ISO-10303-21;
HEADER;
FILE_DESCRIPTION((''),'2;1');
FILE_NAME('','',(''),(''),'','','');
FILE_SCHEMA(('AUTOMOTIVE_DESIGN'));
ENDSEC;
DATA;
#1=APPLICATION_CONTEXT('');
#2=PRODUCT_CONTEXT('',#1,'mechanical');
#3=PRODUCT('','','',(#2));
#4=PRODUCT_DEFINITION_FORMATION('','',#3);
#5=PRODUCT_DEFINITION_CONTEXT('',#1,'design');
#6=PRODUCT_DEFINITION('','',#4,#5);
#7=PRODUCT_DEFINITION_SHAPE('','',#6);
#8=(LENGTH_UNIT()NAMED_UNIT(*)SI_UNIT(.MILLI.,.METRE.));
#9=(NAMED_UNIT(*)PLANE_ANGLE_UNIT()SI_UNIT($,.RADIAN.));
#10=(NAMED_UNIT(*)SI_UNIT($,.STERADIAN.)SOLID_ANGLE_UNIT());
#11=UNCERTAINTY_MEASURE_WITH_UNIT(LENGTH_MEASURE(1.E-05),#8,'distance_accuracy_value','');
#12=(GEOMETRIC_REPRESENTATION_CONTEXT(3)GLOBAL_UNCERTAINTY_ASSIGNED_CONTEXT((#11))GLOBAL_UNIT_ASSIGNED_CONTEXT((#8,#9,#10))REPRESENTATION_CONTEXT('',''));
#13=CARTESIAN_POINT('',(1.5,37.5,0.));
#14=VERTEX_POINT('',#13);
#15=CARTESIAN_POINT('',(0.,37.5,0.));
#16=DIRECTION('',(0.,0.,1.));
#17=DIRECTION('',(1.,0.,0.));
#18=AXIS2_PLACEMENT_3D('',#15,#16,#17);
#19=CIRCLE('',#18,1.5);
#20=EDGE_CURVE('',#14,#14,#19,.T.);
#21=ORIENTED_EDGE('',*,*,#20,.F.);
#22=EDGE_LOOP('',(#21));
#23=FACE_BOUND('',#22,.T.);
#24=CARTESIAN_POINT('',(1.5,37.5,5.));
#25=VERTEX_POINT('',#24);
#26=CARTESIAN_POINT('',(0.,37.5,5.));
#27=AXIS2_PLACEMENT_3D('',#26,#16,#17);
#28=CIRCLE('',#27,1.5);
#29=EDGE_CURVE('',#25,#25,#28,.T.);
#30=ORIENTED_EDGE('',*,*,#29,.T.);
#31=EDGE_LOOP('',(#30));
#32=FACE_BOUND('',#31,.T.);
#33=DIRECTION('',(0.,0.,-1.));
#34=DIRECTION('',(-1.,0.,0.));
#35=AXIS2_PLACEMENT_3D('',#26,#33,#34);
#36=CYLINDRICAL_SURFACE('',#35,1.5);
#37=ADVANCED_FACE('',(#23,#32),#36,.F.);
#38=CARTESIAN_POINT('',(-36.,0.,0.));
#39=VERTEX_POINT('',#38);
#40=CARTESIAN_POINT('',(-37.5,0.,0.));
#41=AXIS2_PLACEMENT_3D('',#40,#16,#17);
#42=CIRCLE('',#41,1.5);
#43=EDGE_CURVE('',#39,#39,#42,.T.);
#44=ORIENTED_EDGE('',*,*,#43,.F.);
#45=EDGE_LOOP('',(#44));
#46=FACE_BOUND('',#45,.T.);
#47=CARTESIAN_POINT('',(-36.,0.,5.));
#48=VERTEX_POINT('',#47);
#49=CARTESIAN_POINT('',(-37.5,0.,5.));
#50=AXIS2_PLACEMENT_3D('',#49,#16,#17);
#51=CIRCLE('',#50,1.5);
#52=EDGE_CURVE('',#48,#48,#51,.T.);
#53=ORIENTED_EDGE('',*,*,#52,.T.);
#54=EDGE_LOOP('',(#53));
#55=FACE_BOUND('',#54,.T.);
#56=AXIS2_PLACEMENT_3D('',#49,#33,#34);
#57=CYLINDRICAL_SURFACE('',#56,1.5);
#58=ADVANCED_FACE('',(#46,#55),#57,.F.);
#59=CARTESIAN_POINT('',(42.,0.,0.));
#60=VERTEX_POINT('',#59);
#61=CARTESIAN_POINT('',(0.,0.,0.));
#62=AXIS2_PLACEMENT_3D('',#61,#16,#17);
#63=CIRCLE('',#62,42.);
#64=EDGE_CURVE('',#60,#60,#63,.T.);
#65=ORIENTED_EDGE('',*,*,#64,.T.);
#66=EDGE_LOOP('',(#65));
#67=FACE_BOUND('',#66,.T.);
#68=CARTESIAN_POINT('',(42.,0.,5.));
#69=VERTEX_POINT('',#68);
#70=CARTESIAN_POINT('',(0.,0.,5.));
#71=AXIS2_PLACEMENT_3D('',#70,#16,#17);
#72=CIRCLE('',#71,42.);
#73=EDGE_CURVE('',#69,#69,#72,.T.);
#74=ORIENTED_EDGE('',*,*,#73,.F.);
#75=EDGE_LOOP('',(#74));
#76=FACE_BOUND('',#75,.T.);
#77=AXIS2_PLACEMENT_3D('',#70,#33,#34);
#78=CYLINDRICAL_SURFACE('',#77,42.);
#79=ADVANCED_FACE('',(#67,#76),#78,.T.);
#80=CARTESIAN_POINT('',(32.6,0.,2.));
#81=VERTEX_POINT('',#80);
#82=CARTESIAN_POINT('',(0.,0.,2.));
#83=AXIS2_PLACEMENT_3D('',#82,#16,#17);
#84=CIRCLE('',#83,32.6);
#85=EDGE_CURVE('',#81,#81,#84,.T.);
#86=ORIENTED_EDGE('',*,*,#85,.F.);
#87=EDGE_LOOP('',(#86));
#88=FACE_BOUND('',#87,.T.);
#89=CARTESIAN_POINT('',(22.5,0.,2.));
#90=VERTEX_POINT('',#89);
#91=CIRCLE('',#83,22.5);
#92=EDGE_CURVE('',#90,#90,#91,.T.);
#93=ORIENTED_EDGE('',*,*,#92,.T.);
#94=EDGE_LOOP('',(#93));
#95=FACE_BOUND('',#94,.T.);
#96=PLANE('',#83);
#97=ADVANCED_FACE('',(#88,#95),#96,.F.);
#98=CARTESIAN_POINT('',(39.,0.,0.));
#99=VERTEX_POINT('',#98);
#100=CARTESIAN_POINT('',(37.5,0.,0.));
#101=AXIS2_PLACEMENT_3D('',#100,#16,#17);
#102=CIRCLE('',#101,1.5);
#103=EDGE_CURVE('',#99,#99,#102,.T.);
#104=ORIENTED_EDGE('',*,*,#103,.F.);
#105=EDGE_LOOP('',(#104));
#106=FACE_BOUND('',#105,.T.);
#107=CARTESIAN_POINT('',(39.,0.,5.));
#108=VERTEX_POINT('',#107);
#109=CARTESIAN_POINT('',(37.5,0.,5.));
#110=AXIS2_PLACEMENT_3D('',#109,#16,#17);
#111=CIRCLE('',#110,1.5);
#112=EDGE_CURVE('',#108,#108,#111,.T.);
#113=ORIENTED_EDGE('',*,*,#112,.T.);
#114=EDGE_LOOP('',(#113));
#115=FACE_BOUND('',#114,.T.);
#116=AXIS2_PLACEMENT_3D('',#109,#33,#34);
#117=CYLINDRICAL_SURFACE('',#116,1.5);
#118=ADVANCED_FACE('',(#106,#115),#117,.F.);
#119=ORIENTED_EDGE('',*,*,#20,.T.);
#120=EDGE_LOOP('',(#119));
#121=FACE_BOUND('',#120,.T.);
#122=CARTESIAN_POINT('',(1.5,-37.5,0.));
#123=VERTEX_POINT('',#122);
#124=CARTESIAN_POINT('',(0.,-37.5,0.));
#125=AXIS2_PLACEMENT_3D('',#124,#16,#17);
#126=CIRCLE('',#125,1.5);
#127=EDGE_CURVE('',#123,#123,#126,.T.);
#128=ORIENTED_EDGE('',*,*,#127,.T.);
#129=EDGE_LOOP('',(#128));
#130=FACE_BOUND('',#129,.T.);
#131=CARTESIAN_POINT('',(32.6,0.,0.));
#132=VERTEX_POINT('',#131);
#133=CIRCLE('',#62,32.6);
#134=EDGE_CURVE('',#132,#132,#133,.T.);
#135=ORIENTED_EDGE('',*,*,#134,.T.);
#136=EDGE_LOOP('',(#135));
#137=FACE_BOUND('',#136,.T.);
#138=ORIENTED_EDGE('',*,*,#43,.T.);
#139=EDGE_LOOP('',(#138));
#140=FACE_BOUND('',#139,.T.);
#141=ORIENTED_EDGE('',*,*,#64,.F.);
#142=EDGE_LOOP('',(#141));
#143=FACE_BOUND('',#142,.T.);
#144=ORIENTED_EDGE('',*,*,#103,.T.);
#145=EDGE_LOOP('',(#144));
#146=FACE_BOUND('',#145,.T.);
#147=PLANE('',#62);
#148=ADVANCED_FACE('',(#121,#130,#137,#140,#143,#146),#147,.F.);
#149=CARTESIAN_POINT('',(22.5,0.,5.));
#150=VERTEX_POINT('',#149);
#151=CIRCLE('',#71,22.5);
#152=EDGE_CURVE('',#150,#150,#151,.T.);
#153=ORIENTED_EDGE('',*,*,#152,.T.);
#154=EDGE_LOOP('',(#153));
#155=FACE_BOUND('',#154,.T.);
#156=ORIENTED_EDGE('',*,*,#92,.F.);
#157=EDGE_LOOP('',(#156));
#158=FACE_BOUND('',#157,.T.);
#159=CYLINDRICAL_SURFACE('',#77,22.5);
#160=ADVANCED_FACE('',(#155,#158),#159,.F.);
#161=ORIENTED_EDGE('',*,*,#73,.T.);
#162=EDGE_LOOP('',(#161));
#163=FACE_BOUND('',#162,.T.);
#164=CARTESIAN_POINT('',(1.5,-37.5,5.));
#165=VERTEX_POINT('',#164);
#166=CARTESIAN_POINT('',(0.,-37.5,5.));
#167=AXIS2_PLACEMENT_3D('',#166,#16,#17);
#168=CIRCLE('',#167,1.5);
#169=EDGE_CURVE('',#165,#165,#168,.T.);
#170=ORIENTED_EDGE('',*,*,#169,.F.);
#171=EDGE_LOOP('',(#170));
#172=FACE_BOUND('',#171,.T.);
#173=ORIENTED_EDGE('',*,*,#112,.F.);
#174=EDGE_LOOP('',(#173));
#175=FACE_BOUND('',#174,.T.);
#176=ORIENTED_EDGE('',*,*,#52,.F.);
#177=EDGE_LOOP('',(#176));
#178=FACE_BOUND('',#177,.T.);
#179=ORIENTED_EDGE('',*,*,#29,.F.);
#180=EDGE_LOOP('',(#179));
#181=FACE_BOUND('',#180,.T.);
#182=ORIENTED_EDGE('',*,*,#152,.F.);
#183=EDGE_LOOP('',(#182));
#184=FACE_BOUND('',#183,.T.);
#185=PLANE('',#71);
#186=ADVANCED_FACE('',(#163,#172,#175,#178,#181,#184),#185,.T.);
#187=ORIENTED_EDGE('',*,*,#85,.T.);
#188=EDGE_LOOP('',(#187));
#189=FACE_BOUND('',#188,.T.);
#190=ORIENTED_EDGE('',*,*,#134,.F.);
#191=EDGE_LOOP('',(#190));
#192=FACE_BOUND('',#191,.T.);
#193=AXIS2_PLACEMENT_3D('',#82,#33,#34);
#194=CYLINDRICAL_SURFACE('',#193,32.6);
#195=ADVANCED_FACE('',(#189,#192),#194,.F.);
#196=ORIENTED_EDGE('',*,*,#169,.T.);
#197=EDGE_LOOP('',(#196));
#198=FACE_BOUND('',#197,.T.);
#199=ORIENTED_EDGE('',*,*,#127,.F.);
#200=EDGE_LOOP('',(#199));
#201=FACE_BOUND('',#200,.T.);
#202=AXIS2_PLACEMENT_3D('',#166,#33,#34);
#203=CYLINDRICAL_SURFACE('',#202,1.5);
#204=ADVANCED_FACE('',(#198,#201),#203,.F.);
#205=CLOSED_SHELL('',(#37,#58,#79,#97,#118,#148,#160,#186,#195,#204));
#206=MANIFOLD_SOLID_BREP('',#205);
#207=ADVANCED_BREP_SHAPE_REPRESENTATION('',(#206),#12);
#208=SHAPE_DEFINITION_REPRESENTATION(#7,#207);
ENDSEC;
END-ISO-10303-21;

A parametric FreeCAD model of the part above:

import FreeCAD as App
import Part
import Sketcher
Q = App.Units.Quantity

doc = App.newDocument("Part")
body = doc.addObject("PartDesign::Body", "Body")

# Sketch on XY plane
sketch1 = body.newObject("Sketcher::SketchObject", "Sketch")
sketch1.AttachmentSupport = (doc.getObject("XY_Plane"), [""])
sketch1.MapMode = "FlatFace"
sketch1.addGeometry([
    Part.Circle(App.Vector(0, 0, 0), App.Vector(0, 0, 1), 42),  # 0
    Part.Circle(App.Vector(0, -37.5, 0), App.Vector(0, 0, 1), 1.5),  # 1
    Part.Circle(App.Vector(-37.5, 0, 0), App.Vector(0, 0, 1), 1.5),  # 2
    Part.Circle(App.Vector(0, 0, 0), App.Vector(0, 0, 1), 22.5),  # 3
    Part.Circle(App.Vector(37.5, 0, 0), App.Vector(0, 0, 1), 1.5),  # 4
    Part.Circle(App.Vector(0, 37.5, 0), App.Vector(0, 0, 1), 1.5),  # 5
], False)
sketch1.addConstraint([
    Sketcher.Constraint("Coincident", 0, 3, -1, 1),
    Sketcher.Constraint("Coincident", 3, 3, -1, 1),
    Sketcher.Constraint("Equal", 1, 2),
    Sketcher.Constraint("Equal", 2, 4),
    Sketcher.Constraint("Equal", 4, 5),
    Sketcher.Constraint("Symmetric", 2, 3, 4, 3, -1, 1),
    Sketcher.Constraint("Symmetric", 1, 3, 5, 3, -1, 1),
    Sketcher.Constraint("PointOnObject", 1, 3, -2),
    Sketcher.Constraint("PointOnObject", 2, 3, -1),
    Sketcher.Constraint("Diameter", 0, Q("84 mm")),
    Sketcher.Constraint("Diameter", 1, Q("3 mm")),
    Sketcher.Constraint("Diameter", 3, Q("45 mm")),
    Sketcher.Constraint("DistanceX", 2, 3, 4, 3, Q("75 mm")),
    Sketcher.Constraint("DistanceY", 1, 3, 5, 3, Q("75 mm")),
])
pad1 = body.newObject("PartDesign::Pad", "Pad")
pad1.Profile = sketch1
pad1.Length = 5

# Sketch on XY plane
sketch2 = body.newObject("Sketcher::SketchObject", "Sketch001")
sketch2.AttachmentSupport = (doc.getObject("XY_Plane"), [""])
sketch2.MapMode = "FlatFace"
sketch2.addGeometry(Part.Circle(App.Vector(0, 0, 0), App.Vector(0, 0, 1), 32.6), False)
sketch2.addConstraint([
    Sketcher.Constraint("Coincident", 0, 3, -1, 1),
    Sketcher.Constraint("Diameter", 0, Q("65.2 mm")),
])
pocket1 = body.newObject("PartDesign::Pocket", "Pocket")
pocket1.Profile = sketch2
pocket1.Length = 2
pocket1.Reversed = True

doc.recompute()
